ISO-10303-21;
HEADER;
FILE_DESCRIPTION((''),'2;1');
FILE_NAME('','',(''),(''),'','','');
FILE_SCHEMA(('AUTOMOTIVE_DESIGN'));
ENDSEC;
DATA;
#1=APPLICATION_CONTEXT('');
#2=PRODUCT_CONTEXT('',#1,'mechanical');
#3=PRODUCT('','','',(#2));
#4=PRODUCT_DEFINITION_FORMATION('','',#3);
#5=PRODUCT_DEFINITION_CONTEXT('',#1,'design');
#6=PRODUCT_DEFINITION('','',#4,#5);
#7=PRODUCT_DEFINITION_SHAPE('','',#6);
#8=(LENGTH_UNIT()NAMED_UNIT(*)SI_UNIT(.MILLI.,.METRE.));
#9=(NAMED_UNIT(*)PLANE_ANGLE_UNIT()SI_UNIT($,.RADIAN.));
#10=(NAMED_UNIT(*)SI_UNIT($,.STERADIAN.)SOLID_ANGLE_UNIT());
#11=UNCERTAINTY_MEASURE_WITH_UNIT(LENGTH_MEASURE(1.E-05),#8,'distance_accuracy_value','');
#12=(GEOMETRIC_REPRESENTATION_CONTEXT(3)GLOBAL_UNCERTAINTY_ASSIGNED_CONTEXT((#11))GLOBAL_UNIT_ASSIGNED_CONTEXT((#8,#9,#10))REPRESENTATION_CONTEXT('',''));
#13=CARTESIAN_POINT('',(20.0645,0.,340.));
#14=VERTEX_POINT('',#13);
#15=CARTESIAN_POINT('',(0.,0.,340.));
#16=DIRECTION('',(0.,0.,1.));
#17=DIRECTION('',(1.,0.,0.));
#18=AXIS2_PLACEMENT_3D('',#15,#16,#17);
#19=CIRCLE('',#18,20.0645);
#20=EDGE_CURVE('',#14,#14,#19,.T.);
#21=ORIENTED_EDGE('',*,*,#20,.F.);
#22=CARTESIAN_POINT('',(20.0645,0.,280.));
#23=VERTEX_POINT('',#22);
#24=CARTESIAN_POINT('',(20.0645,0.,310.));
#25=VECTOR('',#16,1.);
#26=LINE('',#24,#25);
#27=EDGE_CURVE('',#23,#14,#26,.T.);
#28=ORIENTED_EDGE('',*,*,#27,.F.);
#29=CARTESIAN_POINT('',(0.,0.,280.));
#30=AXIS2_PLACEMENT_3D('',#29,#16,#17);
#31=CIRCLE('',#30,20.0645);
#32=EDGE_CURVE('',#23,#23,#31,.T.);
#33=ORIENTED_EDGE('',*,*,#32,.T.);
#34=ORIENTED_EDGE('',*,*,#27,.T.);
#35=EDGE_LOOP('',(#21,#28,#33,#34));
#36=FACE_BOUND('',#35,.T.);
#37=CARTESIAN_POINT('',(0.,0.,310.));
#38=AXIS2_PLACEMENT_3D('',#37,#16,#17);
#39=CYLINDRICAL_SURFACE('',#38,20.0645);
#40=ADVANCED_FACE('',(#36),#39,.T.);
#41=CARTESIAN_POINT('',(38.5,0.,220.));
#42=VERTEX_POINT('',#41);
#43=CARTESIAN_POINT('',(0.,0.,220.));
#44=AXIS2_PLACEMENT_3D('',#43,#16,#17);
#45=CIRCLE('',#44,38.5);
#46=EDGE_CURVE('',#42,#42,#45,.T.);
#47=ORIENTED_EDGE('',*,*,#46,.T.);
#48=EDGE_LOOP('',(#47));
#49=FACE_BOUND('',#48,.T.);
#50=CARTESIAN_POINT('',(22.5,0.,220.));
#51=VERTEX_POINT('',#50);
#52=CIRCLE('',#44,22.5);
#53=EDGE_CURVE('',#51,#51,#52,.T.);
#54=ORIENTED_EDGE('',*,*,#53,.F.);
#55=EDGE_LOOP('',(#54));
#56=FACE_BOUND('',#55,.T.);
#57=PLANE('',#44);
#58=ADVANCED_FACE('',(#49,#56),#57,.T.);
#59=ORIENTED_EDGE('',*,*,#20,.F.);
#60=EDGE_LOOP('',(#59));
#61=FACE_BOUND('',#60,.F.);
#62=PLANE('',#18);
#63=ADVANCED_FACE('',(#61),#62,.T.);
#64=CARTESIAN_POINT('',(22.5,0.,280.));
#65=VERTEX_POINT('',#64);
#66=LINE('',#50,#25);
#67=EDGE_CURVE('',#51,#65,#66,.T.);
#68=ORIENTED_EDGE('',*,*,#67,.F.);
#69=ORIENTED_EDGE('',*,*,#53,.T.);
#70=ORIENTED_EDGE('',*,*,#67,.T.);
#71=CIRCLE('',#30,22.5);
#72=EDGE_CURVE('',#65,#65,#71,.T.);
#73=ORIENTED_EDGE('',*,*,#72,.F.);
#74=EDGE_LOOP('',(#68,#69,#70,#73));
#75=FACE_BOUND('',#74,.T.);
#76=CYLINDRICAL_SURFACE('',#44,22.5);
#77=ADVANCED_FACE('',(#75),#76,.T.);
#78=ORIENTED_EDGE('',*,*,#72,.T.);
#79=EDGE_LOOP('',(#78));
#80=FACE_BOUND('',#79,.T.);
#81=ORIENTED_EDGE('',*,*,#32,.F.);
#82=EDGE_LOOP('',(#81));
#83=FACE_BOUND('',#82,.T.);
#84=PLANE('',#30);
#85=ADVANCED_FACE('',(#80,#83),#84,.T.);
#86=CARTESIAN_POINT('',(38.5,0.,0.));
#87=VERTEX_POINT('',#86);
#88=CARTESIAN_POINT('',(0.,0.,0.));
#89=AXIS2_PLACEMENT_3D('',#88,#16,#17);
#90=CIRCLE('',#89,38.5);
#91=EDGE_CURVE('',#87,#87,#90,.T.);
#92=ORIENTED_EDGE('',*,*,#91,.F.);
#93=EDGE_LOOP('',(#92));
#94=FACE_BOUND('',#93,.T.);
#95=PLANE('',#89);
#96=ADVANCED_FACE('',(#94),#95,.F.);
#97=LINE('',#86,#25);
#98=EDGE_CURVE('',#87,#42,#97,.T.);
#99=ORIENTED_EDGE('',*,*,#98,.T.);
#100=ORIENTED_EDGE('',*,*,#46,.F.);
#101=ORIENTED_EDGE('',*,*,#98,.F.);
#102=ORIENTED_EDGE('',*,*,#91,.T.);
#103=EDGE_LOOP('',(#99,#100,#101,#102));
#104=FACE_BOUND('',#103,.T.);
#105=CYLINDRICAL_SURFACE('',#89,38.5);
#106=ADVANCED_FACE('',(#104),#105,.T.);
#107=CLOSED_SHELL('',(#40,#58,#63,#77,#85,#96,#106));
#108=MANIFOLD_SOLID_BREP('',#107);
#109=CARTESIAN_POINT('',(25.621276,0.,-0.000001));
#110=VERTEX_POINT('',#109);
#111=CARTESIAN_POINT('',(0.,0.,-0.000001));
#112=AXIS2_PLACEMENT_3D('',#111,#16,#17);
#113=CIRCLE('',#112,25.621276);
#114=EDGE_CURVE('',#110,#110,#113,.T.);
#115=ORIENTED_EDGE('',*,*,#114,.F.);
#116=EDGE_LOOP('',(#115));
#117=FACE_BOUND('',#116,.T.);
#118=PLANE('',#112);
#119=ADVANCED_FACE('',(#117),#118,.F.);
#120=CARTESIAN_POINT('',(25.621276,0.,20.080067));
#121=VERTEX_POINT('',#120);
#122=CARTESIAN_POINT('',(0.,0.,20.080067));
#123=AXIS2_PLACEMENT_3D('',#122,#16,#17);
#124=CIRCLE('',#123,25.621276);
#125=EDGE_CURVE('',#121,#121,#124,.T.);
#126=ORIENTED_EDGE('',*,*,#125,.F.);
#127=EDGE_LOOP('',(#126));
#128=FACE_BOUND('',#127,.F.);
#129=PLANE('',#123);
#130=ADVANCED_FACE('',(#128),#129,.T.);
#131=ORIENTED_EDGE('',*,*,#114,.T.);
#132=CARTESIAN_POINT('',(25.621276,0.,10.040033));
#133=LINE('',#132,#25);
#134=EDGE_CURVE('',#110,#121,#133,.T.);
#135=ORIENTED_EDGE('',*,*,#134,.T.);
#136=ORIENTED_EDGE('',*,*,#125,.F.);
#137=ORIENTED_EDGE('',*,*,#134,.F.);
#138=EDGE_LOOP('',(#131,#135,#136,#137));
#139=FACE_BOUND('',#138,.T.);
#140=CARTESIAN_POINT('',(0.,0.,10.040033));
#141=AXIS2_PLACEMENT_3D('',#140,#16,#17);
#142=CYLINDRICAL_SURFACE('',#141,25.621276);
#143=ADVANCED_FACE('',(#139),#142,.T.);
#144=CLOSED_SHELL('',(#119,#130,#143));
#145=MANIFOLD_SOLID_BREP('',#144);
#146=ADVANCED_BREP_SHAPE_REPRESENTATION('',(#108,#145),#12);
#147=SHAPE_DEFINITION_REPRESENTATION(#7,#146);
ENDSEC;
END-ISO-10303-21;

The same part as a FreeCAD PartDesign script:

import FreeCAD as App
import Part
import Sketcher

V = App.Vector


def add_polygon(sketch, points):
    """Adds a closed chain of lines whose ends are joined by coincident constraints."""
    first, n = sketch.GeometryCount, len(points)
    for a, b in zip(points, points[1:] + points[:1]):
        sketch.addGeometry(Part.LineSegment(App.Vector(*a, 0), App.Vector(*b, 0)), False)
    for i in range(n):
        sketch.addConstraint(Sketcher.Constraint("Coincident", first + i, 2, first + (i + 1) % n, 1))

doc = App.newDocument("Part")
body = doc.addObject("PartDesign::Body", "Body")

sketch1 = body.newObject("Sketcher::SketchObject", "Sketch")
sketch1.AttachmentSupport = (doc.getObject("XZ_Plane"), [""])
sketch1.MapMode = "FlatFace"
add_polygon(sketch1, [(22.5, 220), (22.5, 280), (20.0645, 280), (20.0645, 340), (0, 340), (0, 0), (38.5, 0), (38.5, 220)])
sketch1.addConstraint(Sketcher.Constraint("Vertical", 0))
sketch1.addConstraint(Sketcher.Constraint("Horizontal", 1))
sketch1.addConstraint(Sketcher.Constraint("Vertical", 2))
sketch1.addConstraint(Sketcher.Constraint("Horizontal", 3))
sketch1.addConstraint(Sketcher.Constraint("Vertical", 4))
sketch1.addConstraint(Sketcher.Constraint("Horizontal", 5))
sketch1.addConstraint(Sketcher.Constraint("Vertical", 6))
sketch1.addConstraint(Sketcher.Constraint("Horizontal", 7))
sketch1.addConstraint(Sketcher.Constraint("Coincident", 4, 2, -1, 1))
sketch1.addConstraint(Sketcher.Constraint("Equal", 0, 2))
sketch1.addConstraint(Sketcher.Constraint("DistanceX", 7, 2, 7, 1, 16.0))
sketch1.addConstraint(Sketcher.Constraint("DistanceY", 0, 1, 0, 2, 60.0))
sketch1.addConstraint(Sketcher.Constraint("DistanceY", 4, 2, 4, 1, 340.0))
sketch1.addConstraint(Sketcher.Constraint("DistanceX", 5, 1, 5, 2, 38.5))
sketch1.addConstraint(Sketcher.Constraint("DistanceX", 1, 2, 1, 1, 2.4355))
revolution = body.newObject("PartDesign::Revolution", "Revolution")
revolution.Profile = sketch1
revolution.ReferenceAxis = (sketch1, ["V_Axis"])
revolution.Angle = 360
body2 = doc.addObject("PartDesign::Body", "Body001")

sketch2 = body2.newObject("Sketcher::SketchObject", "Sketch001")
sketch2.AttachmentSupport = (doc.getObject("XZ_Plane001"), [""])
sketch2.MapMode = "FlatFace"
add_polygon(sketch2, [(0, 20.080067), (0, 0), (25.621276, 0), (25.621276, 20.080067)])
sketch2.addConstraint(Sketcher.Constraint("Vertical", 0))
sketch2.addConstraint(Sketcher.Constraint("Horizontal", 1))
sketch2.addConstraint(Sketcher.Constraint("Vertical", 2))
sketch2.addConstraint(Sketcher.Constraint("Horizontal", 3))
sketch2.addConstraint(Sketcher.Constraint("Coincident", 0, 2, -1, 1))
sketch2.addConstraint(Sketcher.Constraint("DistanceX", 1, 1, 1, 2, 25.621276))
sketch2.addConstraint(Sketcher.Constraint("DistanceY", 0, 2, 0, 1, 20.080067))
revolution2 = body2.newObject("PartDesign::Revolution", "Revolution001")
revolution2.Profile = sketch2
revolution2.ReferenceAxis = (sketch2, ["V_Axis"])
revolution2.Angle = 360

doc.recompute()
